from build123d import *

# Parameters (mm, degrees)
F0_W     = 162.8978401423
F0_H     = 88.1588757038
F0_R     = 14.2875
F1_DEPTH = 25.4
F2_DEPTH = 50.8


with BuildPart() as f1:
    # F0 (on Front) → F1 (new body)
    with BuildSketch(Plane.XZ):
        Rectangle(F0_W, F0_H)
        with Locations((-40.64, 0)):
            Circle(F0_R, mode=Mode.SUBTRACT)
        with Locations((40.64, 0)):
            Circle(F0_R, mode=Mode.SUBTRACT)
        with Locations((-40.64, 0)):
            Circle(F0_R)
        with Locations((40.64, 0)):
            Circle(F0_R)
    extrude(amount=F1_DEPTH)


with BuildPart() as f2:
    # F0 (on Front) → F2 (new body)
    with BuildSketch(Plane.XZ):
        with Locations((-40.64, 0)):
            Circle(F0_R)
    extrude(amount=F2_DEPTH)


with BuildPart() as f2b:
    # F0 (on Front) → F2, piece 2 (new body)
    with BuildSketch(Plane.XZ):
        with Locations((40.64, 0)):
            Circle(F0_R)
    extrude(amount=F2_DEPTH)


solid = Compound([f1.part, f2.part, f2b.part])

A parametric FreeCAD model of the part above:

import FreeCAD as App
import Part
import Sketcher
Q = App.Units.Quantity


def add_polygon(sketch, points):
    """Adds a closed chain of lines whose ends are joined by coincident constraints."""
    first, n = sketch.GeometryCount, len(points)
    for a, b in zip(points, points[1:] + points[:1]):
        sketch.addGeometry(Part.LineSegment(App.Vector(*a, 0), App.Vector(*b, 0)), False)
    for i in range(n):
        sketch.addConstraint(Sketcher.Constraint("Coincident", first + i, 2, first + (i + 1) % n, 1))

doc = App.newDocument("Part")
body = doc.addObject("PartDesign::Body", "Body")

# Sketch on XZ plane
sketch1 = doc.addObject("Sketcher::SketchObject", "Sketch")
body.addObject(sketch1)
sketch1.AttachmentSupport = (doc.XZ_Plane, [""])
sketch1.MapMode = "FlatFace"
add_polygon(sketch1, [(-81, 44), (-81, -44), (81, -44), (81, 44)])  # lines 0-3
sketch1.addConstraint([
    Sketcher.Constraint("Vertical", 0),
    Sketcher.Constraint("Horizontal", 1),
    Sketcher.Constraint("Vertical", 2),
    Sketcher.Constraint("Horizontal", 3),
    Sketcher.Constraint("Symmetric", 0, 2, 2, 2, -1, 1),
    Sketcher.Constraint("DistanceX", 1, 1, 1, 2, 162.89784),
    Sketcher.Constraint("DistanceY", 0, 2, 0, 1, 88.158876),
])
pad1 = doc.addObject("PartDesign::Pad", "Pad")
body.addObject(pad1)
pad1.Profile = sketch1
pad1.Length = Q("1 in")
body2 = doc.addObject("PartDesign::Body", "Body001")

# Sketch on XZ plane
sketch2 = doc.addObject("Sketcher::SketchObject", "Sketch001")
body2.addObject(sketch2)
sketch2.AttachmentSupport = (doc.getObject("XZ_Plane001"), [""])
sketch2.MapMode = "FlatFace"
sketch2.addGeometry(Part.Circle(App.Vector(-41, 0, 0), App.Vector(0, 0, 1), 14), False)
sketch2.addConstraint([
    Sketcher.Constraint("PointOnObject", 0, 3, -1),
    Sketcher.Constraint("Diameter", 0, Q("1.125 in")),
    Sketcher.Constraint("DistanceX", 0, 3, -1, 1, Q("1.6 in")),
])
pad2 = doc.addObject("PartDesign::Pad", "Pad001")
body2.addObject(pad2)
pad2.Profile = sketch2
pad2.Length = Q("2 in")
body3 = doc.addObject("PartDesign::Body", "Body002")

# Sketch on XZ plane
sketch3 = doc.addObject("Sketcher::SketchObject", "Sketch002")
body3.addObject(sketch3)
sketch3.AttachmentSupport = (doc.getObject("XZ_Plane002"), [""])
sketch3.MapMode = "FlatFace"
sketch3.addGeometry(Part.Circle(App.Vector(41, 0, 0), App.Vector(0, 0, 1), 14), False)
sketch3.addConstraint([
    Sketcher.Constraint("PointOnObject", 0, 3, -1),
    Sketcher.Constraint("Diameter", 0, Q("1.125 in")),
    Sketcher.Constraint("DistanceX", -1, 1, 0, 3, Q("1.6 in")),
])
pad3 = doc.addObject("PartDesign::Pad", "Pad002")
body3.addObject(pad3)
pad3.Profile = sketch3
pad3.Length = Q("2 in")

doc.recompute()
